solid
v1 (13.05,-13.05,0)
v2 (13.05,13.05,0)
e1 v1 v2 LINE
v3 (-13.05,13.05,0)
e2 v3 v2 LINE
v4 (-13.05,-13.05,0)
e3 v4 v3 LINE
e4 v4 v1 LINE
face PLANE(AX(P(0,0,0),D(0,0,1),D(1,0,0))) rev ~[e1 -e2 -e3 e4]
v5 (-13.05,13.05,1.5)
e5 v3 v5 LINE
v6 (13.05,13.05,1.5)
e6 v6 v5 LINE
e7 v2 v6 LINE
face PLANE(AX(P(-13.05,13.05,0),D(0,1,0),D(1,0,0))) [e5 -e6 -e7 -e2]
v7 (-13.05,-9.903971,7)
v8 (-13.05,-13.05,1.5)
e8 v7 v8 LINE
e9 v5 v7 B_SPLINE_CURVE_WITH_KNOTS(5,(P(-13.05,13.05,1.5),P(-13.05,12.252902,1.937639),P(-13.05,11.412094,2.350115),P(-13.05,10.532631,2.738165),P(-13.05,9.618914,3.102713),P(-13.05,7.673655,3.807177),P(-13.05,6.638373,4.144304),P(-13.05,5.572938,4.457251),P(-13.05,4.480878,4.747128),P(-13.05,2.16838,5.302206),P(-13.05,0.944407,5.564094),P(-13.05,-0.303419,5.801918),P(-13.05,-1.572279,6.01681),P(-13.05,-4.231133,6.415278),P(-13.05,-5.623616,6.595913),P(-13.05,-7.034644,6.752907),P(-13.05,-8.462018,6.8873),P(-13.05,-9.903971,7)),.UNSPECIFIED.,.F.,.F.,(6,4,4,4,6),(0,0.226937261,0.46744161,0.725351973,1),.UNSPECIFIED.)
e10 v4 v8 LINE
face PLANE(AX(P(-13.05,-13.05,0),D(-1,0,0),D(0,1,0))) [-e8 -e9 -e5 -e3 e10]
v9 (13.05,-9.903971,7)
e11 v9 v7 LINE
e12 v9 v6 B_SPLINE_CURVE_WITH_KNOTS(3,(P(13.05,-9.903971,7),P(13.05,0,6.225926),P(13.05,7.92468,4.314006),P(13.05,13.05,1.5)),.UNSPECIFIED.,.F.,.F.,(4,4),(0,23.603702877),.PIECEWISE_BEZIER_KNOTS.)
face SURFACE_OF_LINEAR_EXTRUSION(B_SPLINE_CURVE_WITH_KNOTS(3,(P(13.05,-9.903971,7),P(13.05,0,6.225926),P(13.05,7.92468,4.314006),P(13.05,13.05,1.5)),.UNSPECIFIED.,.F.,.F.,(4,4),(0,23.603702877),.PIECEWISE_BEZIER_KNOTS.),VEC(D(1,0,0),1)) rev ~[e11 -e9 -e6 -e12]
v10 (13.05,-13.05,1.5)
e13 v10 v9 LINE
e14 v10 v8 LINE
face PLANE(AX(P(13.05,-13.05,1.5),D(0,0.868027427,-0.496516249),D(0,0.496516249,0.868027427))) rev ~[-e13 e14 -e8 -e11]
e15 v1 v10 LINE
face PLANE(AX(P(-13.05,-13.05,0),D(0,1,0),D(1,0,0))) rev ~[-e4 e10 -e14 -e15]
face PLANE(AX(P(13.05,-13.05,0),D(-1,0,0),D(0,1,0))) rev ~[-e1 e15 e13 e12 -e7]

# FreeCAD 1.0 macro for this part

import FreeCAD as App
import Part
import Sketcher
from FreeCAD import Vector
Q = App.Units.Quantity

doc = App.newDocument("Part")
params = doc.addObject("Spreadsheet::Sheet", "Params")
for row, (alias, value) in enumerate([
    ("sketch1_width", "26.1 mm"),
    ("pad1_length", "7 mm"),
], start=1):
    params.set(f"A{row}", alias)
    params.set(f"B{row}", "=" + value)
    params.setAlias(f"B{row}", alias)

body = doc.addObject("PartDesign::Body", "Body")

sketch1 = body.newObject("Sketcher::SketchObject", "Sketch")
sketch1.AttachmentSupport = (doc.getObject("XY_Plane"), [""])
sketch1.MapMode = "FlatFace"
sketch1.addGeometry([
    Part.LineSegment(Vector(-13, 13, 0), Vector(-13, -13, 0)),
    Part.LineSegment(Vector(-13, -13, 0), Vector(13, -13, 0)),
    Part.LineSegment(Vector(13, -13, 0), Vector(13, 13, 0)),
    Part.LineSegment(Vector(13, 13, 0), Vector(-13, 13, 0)),
], False)
sketch1.addConstraint([
    Sketcher.Constraint("Coincident", 0, 2, 1, 1),
    Sketcher.Constraint("Coincident", 1, 2, 2, 1),
    Sketcher.Constraint("Coincident", 2, 2, 3, 1),
    Sketcher.Constraint("Coincident", 3, 2, 0, 1),
    Sketcher.Constraint("Vertical", 0),
    Sketcher.Constraint("Horizontal", 1),
    Sketcher.Constraint("Vertical", 2),
    Sketcher.Constraint("Horizontal", 3),
    Sketcher.Constraint("Symmetric", 0, 2, 2, 2, -1, 1),
    Sketcher.Constraint("Equal", 3, 0),
    Sketcher.Constraint("DistanceX", 1, 1, 1, 2, Q("26.1 mm")),
])
sketch1.setExpression("Constraints[10]", "Params.sketch1_width")
pad1 = body.newObject("PartDesign::Pad", "Pad")
pad1.Profile = sketch1
pad1.setExpression("Length", "Params.pad1_length")

sketch2 = body.newObject("Sketcher::SketchObject", "Sketch001")
sketch2.AttachmentSupport = (doc.getObject("YZ_Plane"), [""])
sketch2.MapMode = "FlatFace"
sketch2.AttachmentOffset = App.Placement(Vector(0, 0, 13.05), App.Rotation())
sketch2.addGeometry([
    Part.LineSegment(Vector(-13.05, 7, 0), Vector(-13.05, 1.5, 0)),
    Part.LineSegment(Vector(-13.05, 1.5, 0), Vector(-9.903971, 7, 0)),
    Part.LineSegment(Vector(-9.903971, 7, 0), Vector(-13.05, 7, 0)),
    Part.LineSegment(Vector(13.05, 7, 0), Vector(-9.903971, 7, 0)),
    Part.BSplineCurve([Vector(-9.903971, 7, 0), Vector(0, 6.225926, 0), Vector(7.92468, 4.314006, 0), Vector(13.05, 1.5, 0)], [4, 4], [0, 23.603702877], False, 3, [1, 1, 1, 1], False),
    Part.LineSegment(Vector(13.05, 1.5, 0), Vector(13.05, 7, 0)),
], False)
sketch2.addConstraint([
    Sketcher.Constraint("Block", 4),
    Sketcher.Constraint("Coincident", 0, 2, 1, 1),
    Sketcher.Constraint("Coincident", 1, 2, 2, 1),
    Sketcher.Constraint("Coincident", 2, 2, 0, 1),
    Sketcher.Constraint("Coincident", 3, 2, 4, 1),
    Sketcher.Constraint("Coincident", 4, 2, 5, 1),
    Sketcher.Constraint("Coincident", 5, 2, 3, 1),
    Sketcher.Constraint("Vertical", 0),
    Sketcher.Constraint("Horizontal", 2),
    Sketcher.Constraint("Horizontal", 3),
    Sketcher.Constraint("Vertical", 5),
    Sketcher.Constraint("Coincident", 3, 2, 1, 2),
    Sketcher.Constraint("Equal", 0, 5),
    Sketcher.Constraint("DistanceX", 2, 2, 5, 2, Q("26.1 mm")),
])
pocket1 = body.newObject("PartDesign::Pocket", "Pocket")
pocket1.Profile = sketch2
pocket1.Type = "ThroughAll"

doc.recompute()
